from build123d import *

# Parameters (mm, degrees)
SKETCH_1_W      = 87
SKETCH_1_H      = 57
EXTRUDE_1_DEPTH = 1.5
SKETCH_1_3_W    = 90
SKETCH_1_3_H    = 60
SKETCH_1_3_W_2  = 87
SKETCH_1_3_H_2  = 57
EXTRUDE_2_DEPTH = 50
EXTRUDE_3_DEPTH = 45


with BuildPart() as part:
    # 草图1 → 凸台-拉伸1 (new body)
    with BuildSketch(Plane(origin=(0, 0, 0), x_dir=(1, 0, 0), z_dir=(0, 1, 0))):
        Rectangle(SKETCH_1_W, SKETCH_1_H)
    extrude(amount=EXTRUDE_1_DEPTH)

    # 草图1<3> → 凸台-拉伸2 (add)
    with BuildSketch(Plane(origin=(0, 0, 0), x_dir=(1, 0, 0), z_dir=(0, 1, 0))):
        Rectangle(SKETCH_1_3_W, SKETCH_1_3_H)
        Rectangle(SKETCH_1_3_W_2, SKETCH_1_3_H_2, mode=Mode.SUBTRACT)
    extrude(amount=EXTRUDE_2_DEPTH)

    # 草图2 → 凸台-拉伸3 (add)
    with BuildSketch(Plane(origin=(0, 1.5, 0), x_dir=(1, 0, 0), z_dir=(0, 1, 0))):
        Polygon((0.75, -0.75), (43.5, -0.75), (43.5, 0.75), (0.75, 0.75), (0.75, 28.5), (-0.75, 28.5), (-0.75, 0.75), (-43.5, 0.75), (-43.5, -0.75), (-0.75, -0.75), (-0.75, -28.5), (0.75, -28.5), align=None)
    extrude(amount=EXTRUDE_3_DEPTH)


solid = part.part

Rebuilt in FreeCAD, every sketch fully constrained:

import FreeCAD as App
import Part
import Sketcher
from FreeCAD import Vector

doc = App.newDocument("Part")
body = doc.addObject("PartDesign::Body", "Body")

# Sketch on XZ plane
sketch1 = doc.addObject("Sketcher::SketchObject", "Sketch")
body.addObject(sketch1)
sketch1.AttachmentSupport = (doc.XZ_Plane, [""])
sketch1.MapMode = "FlatFace"
sketch1.addGeometry([
    Part.LineSegment(Vector(-44, -28, 0), Vector(-44, 28, 0)),
    Part.LineSegment(Vector(-44, 28, 0), Vector(44, 28, 0)),
    Part.LineSegment(Vector(44, 28, 0), Vector(44, -28, 0)),
    Part.LineSegment(Vector(44, -28, 0), Vector(-44, -28, 0)),
], False)
sketch1.addConstraint([
    Sketcher.Constraint("Coincident", 0, 2, 1, 1),
    Sketcher.Constraint("Coincident", 1, 2, 2, 1),
    Sketcher.Constraint("Coincident", 2, 2, 3, 1),
    Sketcher.Constraint("Coincident", 3, 2, 0, 1),
    Sketcher.Constraint("Vertical", 0),
    Sketcher.Constraint("Horizontal", 1),
    Sketcher.Constraint("Vertical", 2),
    Sketcher.Constraint("Horizontal", 3),
    Sketcher.Constraint("Symmetric", 0, 2, 2, 2, -1, 1),
    Sketcher.Constraint("DistanceX", 1, 1, 1, 2, 87.0),
    Sketcher.Constraint("DistanceY", 0, 1, 0, 2, 57.0),
])
pad1 = doc.addObject("PartDesign::Pad", "Pad")
body.addObject(pad1)
pad1.Profile = sketch1
pad1.Length = 1.5
pad1.Reversed = True

# Sketch on XZ plane
sketch2 = doc.addObject("Sketcher::SketchObject", "Sketch001")
body.addObject(sketch2)
sketch2.AttachmentSupport = (doc.XZ_Plane, [""])
sketch2.MapMode = "FlatFace"
sketch2.addGeometry([
    Part.LineSegment(Vector(-45, -30, 0), Vector(-45, 30, 0)),  # 0
    Part.LineSegment(Vector(-45, 30, 0), Vector(45, 30, 0)),  # 1
    Part.LineSegment(Vector(45, 30, 0), Vector(45, -30, 0)),  # 2
    Part.LineSegment(Vector(45, -30, 0), Vector(-45, -30, 0)),  # 3
    Part.LineSegment(Vector(44, 28, 0), Vector(-44, 28, 0)),  # 4
    Part.LineSegment(Vector(-44, 28, 0), Vector(-44, -28, 0)),  # 5
    Part.LineSegment(Vector(-44, -28, 0), Vector(44, -28, 0)),  # 6
    Part.LineSegment(Vector(44, -28, 0), Vector(44, 28, 0)),  # 7
], False)
sketch2.addConstraint([
    Sketcher.Constraint("Coincident", 0, 2, 1, 1),
    Sketcher.Constraint("Coincident", 1, 2, 2, 1),
    Sketcher.Constraint("Coincident", 2, 2, 3, 1),
    Sketcher.Constraint("Coincident", 3, 2, 0, 1),
    Sketcher.Constraint("Coincident", 4, 2, 5, 1),
    Sketcher.Constraint("Coincident", 5, 2, 6, 1),
    Sketcher.Constraint("Coincident", 6, 2, 7, 1),
    Sketcher.Constraint("Coincident", 7, 2, 4, 1),
    Sketcher.Constraint("Vertical", 0),
    Sketcher.Constraint("Horizontal", 1),
    Sketcher.Constraint("Vertical", 2),
    Sketcher.Constraint("Horizontal", 3),
    Sketcher.Constraint("Horizontal", 4),
    Sketcher.Constraint("Vertical", 5),
    Sketcher.Constraint("Horizontal", 6),
    Sketcher.Constraint("Vertical", 7),
    Sketcher.Constraint("Symmetric", 0, 2, 2, 2, -1, 1),
    Sketcher.Constraint("Symmetric", 4, 2, 6, 2, -1, 1),
    Sketcher.Constraint("DistanceX", 1, 1, 1, 2, 90.0),
    Sketcher.Constraint("DistanceX", 4, 2, 4, 1, 87.0),
    Sketcher.Constraint("DistanceY", 0, 1, 0, 2, 60.0),
    Sketcher.Constraint("DistanceY", 5, 2, 5, 1, 57.0),
])
pad2 = doc.addObject("PartDesign::Pad", "Pad001")
body.addObject(pad2)
pad2.Profile = sketch2
pad2.Length = 50
pad2.Reversed = True

# Sketch on XZ plane
sketch3 = doc.addObject("Sketcher::SketchObject", "Sketch002")
body.addObject(sketch3)
sketch3.AttachmentSupport = (doc.XZ_Plane, [""])
sketch3.MapMode = "FlatFace"
sketch3.AttachmentOffset = App.Placement(Vector(0, 0, -1.5), App.Rotation())
sketch3.addGeometry([
    Part.LineSegment(Vector(0.8, 0.8, 0), Vector(43.5, 0.8, 0)),  # 0
    Part.LineSegment(Vector(43.5, 0.8, 0), Vector(43.5, -0.8, 0)),  # 1
    Part.LineSegment(Vector(43.5, -0.8, 0), Vector(0.8, -0.8, 0)),  # 2
    Part.LineSegment(Vector(0.8, -0.8, 0), Vector(0.8, -28.5, 0)),  # 3
    Part.LineSegment(Vector(0.8, -28.5, 0), Vector(-0.8, -28.5, 0)),  # 4
    Part.LineSegment(Vector(-0.8, -28.5, 0), Vector(-0.8, -0.8, 0)),  # 5
    Part.LineSegment(Vector(-0.8, -0.8, 0), Vector(-43.5, -0.8, 0)),  # 6
    Part.LineSegment(Vector(-43.5, -0.8, 0), Vector(-43.5, 0.8, 0)),  # 7
    Part.LineSegment(Vector(-43.5, 0.8, 0), Vector(-0.8, 0.8, 0)),  # 8
    Part.LineSegment(Vector(-0.8, 0.8, 0), Vector(-0.8, 28.5, 0)),  # 9
    Part.LineSegment(Vector(-0.8, 28.5, 0), Vector(0.8, 28.5, 0)),  # 10
    Part.LineSegment(Vector(0.8, 28.5, 0), Vector(0.8, 0.8, 0)),  # 11
], False)
sketch3.addConstraint([
    Sketcher.Constraint("Coincident", 0, 2, 1, 1),
    Sketcher.Constraint("Coincident", 1, 2, 2, 1),
    Sketcher.Constraint("Coincident", 2, 2, 3, 1),
    Sketcher.Constraint("Coincident", 3, 2, 4, 1),
    Sketcher.Constraint("Coincident", 4, 2, 5, 1),
    Sketcher.Constraint("Coincident", 5, 2, 6, 1),
    Sketcher.Constraint("Coincident", 6, 2, 7, 1),
    Sketcher.Constraint("Coincident", 7, 2, 8, 1),
    Sketcher.Constraint("Coincident", 8, 2, 9, 1),
    Sketcher.Constraint("Coincident", 9, 2, 10, 1),
    Sketcher.Constraint("Coincident", 10, 2, 11, 1),
    Sketcher.Constraint("Coincident", 11, 2, 0, 1),
    Sketcher.Constraint("Horizontal", 0),
    Sketcher.Constraint("Vertical", 1),
    Sketcher.Constraint("Horizontal", 2),
    Sketcher.Constraint("Vertical", 3),
    Sketcher.Constraint("Horizontal", 4),
    Sketcher.Constraint("Vertical", 5),
    Sketcher.Constraint("Horizontal", 6),
    Sketcher.Constraint("Vertical", 7),
    Sketcher.Constraint("Horizontal", 8),
    Sketcher.Constraint("Vertical", 9),
    Sketcher.Constraint("Horizontal", 10),
    Sketcher.Constraint("Vertical", 11),
    Sketcher.Constraint("Symmetric", 0, 2, 6, 2, -1, 1),
    Sketcher.Constraint("Symmetric", 2, 2, 8, 2, -1, 1),
    Sketcher.Constraint("Symmetric", 4, 2, 10, 2, -1, 1),
    Sketcher.Constraint("Symmetric", 2, 2, 5, 2, -2),
    Sketcher.Constraint("Equal", 10, 1),
    Sketcher.Constraint("DistanceX", 4, 2, 4, 1, 1.5),
    Sketcher.Constraint("DistanceX", 6, 2, 1, 2, 87.0),
    Sketcher.Constraint("DistanceY", 3, 2, 3, 1, 27.75),
])
pad3 = doc.addObject("PartDesign::Pad", "Pad002")
body.addObject(pad3)
pad3.Profile = sketch3
pad3.Length = 45
pad3.Reversed = True

doc.recompute()
